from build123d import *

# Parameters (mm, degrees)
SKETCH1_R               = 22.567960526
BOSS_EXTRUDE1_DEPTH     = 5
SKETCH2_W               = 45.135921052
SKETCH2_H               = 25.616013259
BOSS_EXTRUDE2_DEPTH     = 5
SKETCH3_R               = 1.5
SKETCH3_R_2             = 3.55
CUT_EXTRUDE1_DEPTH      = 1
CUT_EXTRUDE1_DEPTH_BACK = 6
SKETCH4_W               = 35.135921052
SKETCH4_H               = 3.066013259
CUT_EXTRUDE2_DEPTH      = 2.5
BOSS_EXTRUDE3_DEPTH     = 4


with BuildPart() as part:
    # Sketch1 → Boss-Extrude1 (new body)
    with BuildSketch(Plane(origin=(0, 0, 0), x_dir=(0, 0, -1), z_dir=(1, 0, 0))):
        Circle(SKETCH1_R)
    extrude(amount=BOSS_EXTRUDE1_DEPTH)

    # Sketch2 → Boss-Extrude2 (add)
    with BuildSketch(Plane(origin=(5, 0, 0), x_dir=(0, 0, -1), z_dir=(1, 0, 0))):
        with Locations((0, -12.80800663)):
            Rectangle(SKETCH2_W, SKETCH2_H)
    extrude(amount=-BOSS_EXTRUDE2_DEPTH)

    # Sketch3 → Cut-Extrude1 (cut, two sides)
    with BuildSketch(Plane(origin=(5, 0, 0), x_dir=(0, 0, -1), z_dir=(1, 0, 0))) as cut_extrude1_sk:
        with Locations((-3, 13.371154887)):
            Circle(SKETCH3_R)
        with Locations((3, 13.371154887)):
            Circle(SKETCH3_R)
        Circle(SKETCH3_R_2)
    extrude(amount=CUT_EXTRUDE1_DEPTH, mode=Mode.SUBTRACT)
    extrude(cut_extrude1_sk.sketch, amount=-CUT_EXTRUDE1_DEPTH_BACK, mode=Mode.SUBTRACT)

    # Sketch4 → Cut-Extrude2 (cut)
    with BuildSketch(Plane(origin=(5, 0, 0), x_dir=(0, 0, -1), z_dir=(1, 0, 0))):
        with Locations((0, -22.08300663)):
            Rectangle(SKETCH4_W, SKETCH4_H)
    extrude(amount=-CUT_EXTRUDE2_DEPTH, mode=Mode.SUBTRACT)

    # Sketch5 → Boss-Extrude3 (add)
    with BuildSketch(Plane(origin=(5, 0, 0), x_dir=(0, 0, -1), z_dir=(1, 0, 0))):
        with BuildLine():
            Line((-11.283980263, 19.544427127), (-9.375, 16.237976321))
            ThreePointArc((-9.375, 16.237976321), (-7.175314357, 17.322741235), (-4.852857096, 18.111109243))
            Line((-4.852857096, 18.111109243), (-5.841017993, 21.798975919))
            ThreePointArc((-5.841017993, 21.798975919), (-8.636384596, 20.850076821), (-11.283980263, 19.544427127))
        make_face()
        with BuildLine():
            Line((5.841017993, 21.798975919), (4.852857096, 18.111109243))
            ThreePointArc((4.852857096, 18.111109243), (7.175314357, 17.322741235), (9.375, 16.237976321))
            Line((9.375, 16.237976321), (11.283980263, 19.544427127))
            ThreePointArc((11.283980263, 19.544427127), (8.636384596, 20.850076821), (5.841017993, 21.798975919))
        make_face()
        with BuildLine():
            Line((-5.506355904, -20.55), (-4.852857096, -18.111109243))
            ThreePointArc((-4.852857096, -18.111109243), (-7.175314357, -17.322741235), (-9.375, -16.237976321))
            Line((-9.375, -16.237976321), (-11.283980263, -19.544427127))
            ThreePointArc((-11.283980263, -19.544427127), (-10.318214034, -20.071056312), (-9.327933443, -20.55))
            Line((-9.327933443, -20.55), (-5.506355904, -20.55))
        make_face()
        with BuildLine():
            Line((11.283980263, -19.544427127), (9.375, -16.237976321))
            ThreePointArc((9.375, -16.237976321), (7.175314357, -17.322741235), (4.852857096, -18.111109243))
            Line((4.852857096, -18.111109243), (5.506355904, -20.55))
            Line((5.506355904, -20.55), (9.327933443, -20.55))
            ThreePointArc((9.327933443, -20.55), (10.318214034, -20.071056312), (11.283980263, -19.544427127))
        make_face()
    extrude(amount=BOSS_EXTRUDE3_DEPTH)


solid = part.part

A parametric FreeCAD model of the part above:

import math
import FreeCAD as App
import Part
import Sketcher
Q = App.Units.Quantity

doc = App.newDocument("Part")
body = doc.addObject("PartDesign::Body", "Body")

# Sketch on YZ plane
sketch1 = body.newObject("Sketcher::SketchObject", "Sketch")
sketch1.AttachmentSupport = (doc.getObject("YZ_Plane"), [""])
sketch1.MapMode = "FlatFace"
sketch1.addGeometry(Part.Circle(App.Vector(0, 0, 0), App.Vector(0, 0, 1), 23), False)
sketch1.addConstraint([
    Sketcher.Constraint("Coincident", 0, 3, -1, 1),
    Sketcher.Constraint("Diameter", 0, 45.135921),
])
pad1 = body.newObject("PartDesign::Pad", "Pad")
pad1.Profile = sketch1
pad1.Length = 5

# Sketch on YZ plane
sketch2 = body.newObject("Sketcher::SketchObject", "Sketch001")
sketch2.AttachmentSupport = (doc.getObject("YZ_Plane"), [""])
sketch2.MapMode = "FlatFace"
sketch2.AttachmentOffset = App.Placement(App.Vector(0, 0, 5), App.Rotation())
sketch2.addGeometry([
    Part.LineSegment(App.Vector(0, 23, 0), App.Vector(-26, 23, 0)),
    Part.LineSegment(App.Vector(-26, 23, 0), App.Vector(-26, -23, 0)),
    Part.LineSegment(App.Vector(-26, -23, 0), App.Vector(0, -23, 0)),
    Part.LineSegment(App.Vector(0, -23, 0), App.Vector(0, 23, 0)),
], False)
sketch2.addConstraint([
    Sketcher.Constraint("Coincident", 0, 2, 1, 1),
    Sketcher.Constraint("Coincident", 1, 2, 2, 1),
    Sketcher.Constraint("Coincident", 2, 2, 3, 1),
    Sketcher.Constraint("Coincident", 3, 2, 0, 1),
    Sketcher.Constraint("Horizontal", 0),
    Sketcher.Constraint("Vertical", 1),
    Sketcher.Constraint("Horizontal", 2),
    Sketcher.Constraint("Vertical", 3),
    Sketcher.Constraint("Symmetric", 2, 2, 3, 2, -1, 1),
    Sketcher.Constraint("DistanceY", 1, 2, 1, 1, 45.135921),
    Sketcher.Constraint("DistanceX", 0, 2, 0, 1, 25.616013),
])
pad2 = body.newObject("PartDesign::Pad", "Pad001")
pad2.Profile = sketch2
pad2.Length = 5
pad2.Reversed = True

# Sketch on YZ plane
sketch3 = body.newObject("Sketcher::SketchObject", "Sketch002")
sketch3.AttachmentSupport = (doc.getObject("YZ_Plane"), [""])
sketch3.MapMode = "FlatFace"
sketch3.AttachmentOffset = App.Placement(App.Vector(0, 0, 5), App.Rotation())
sketch3.addGeometry([
    Part.Circle(App.Vector(13.4, 3, 0), App.Vector(0, 0, 1), 1.5),
    Part.Circle(App.Vector(13.4, -3, 0), App.Vector(0, 0, 1), 1.5),
    Part.Circle(App.Vector(0, 0, 0), App.Vector(0, 0, 1), 3.5),
], False)
sketch3.addConstraint([
    Sketcher.Constraint("Coincident", 2, 3, -1, 1),
    Sketcher.Constraint("Equal", 0, 1),
    Sketcher.Constraint("Symmetric", 0, 3, 1, 3, -1),
    Sketcher.Constraint("Diameter", 0, 3.0),
    Sketcher.Constraint("Diameter", 2, 7.1),
    Sketcher.Constraint("DistanceY", -1, 1, 0, 3, 3.0),
    Sketcher.Constraint("DistanceX", -1, 1, 0, 3, 13.371155),
])
pocket1 = body.newObject("PartDesign::Pocket", "Pocket")
pocket1.Profile = sketch3
pocket1.Type = "ThroughAll"
pocket1.Midplane = True

# Sketch on YZ plane
sketch4 = body.newObject("Sketcher::SketchObject", "Sketch003")
sketch4.AttachmentSupport = (doc.getObject("YZ_Plane"), [""])
sketch4.MapMode = "FlatFace"
sketch4.AttachmentOffset = App.Placement(App.Vector(0, 0, 5), App.Rotation())
sketch4.addGeometry([
    Part.LineSegment(App.Vector(-20.6, 17.6, 0), App.Vector(-23.6, 17.6, 0)),
    Part.LineSegment(App.Vector(-23.6, 17.6, 0), App.Vector(-23.6, -17.6, 0)),
    Part.LineSegment(App.Vector(-23.6, -17.6, 0), App.Vector(-20.6, -17.6, 0)),
    Part.LineSegment(App.Vector(-20.6, -17.6, 0), App.Vector(-20.6, 17.6, 0)),
], False)
sketch4.addConstraint([
    Sketcher.Constraint("Coincident", 0, 2, 1, 1),
    Sketcher.Constraint("Coincident", 1, 2, 2, 1),
    Sketcher.Constraint("Coincident", 2, 2, 3, 1),
    Sketcher.Constraint("Coincident", 3, 2, 0, 1),
    Sketcher.Constraint("Horizontal", 0),
    Sketcher.Constraint("Vertical", 1),
    Sketcher.Constraint("Horizontal", 2),
    Sketcher.Constraint("Vertical", 3),
    Sketcher.Constraint("DistanceX", 2, 2, -1, 1, 20.55),
    Sketcher.Constraint("DistanceY", 1, 2, 1, 1, 35.135921),
    Sketcher.Constraint("DistanceX", 0, 2, 0, 1, 3.066013),
    Sketcher.Constraint("DistanceY", -1, 1, 0, 2, 17.567961),
])
pocket2 = body.newObject("PartDesign::Pocket", "Pocket001")
pocket2.Profile = sketch4
pocket2.Length = 2.5

# Sketch on YZ plane
sketch5 = body.newObject("Sketcher::SketchObject", "Sketch004")
sketch5.AttachmentSupport = (doc.getObject("YZ_Plane"), [""])
sketch5.MapMode = "FlatFace"
sketch5.AttachmentOffset = App.Placement(App.Vector(0, 0, 5), App.Rotation())
sketch5.addGeometry([
    Part.LineSegment(App.Vector(19.5, 11.3, 0), App.Vector(16.2, 9.4, 0)),  # 0
    Part.ArcOfCircle(Part.Circle(App.Vector(0, 0, 0), App.Vector(0, 0, 1), 18.7), math.radians(15), math.radians(30)),  # 1
    Part.LineSegment(App.Vector(18.1, 4.9, 0), App.Vector(21.8, 5.8, 0)),  # 2
    Part.ArcOfCircle(Part.Circle(App.Vector(0, 0, 0), App.Vector(0, 0, 1), 22.6), math.radians(15), math.radians(30)),  # 3
    Part.LineSegment(App.Vector(21.8, -5.8, 0), App.Vector(18.1, -4.9, 0)),  # 4
    Part.ArcOfCircle(Part.Circle(App.Vector(0, 0, 0), App.Vector(0, 0, 1), 18.7), math.radians(-30), math.radians(-15)),  # 5
    Part.LineSegment(App.Vector(16.2, -9.4, 0), App.Vector(19.5, -11.3, 0)),  # 6
    Part.ArcOfCircle(Part.Circle(App.Vector(0, 0, 0), App.Vector(0, 0, 1), 22.6), math.radians(-30), math.radians(-15)),  # 7
    Part.LineSegment(App.Vector(-20.6, 5.5, 0), App.Vector(-18.1, 4.9, 0)),  # 8
    Part.ArcOfCircle(Part.Circle(App.Vector(0, 0, 0), App.Vector(0, 0, 1), 18.7), math.radians(150), math.radians(165)),  # 9
    Part.LineSegment(App.Vector(-16.2, 9.4, 0), App.Vector(-19.5, 11.3, 0)),  # 10
    Part.ArcOfCircle(Part.Circle(App.Vector(0, 0, 0), App.Vector(0, 0, 1), 22.6), math.radians(150), math.radians(155.59)),  # 11
    Part.LineSegment(App.Vector(-20.6, 9.3, 0), App.Vector(-20.6, 5.5, 0)),  # 12
    Part.LineSegment(App.Vector(-19.5, -11.3, 0), App.Vector(-16.2, -9.4, 0)),  # 13
    Part.ArcOfCircle(Part.Circle(App.Vector(0, 0, 0), App.Vector(0, 0, 1), 18.7), math.radians(-165), math.radians(-150)),  # 14
    Part.LineSegment(App.Vector(-18.1, -4.9, 0), App.Vector(-20.6, -5.5, 0)),  # 15
    Part.LineSegment(App.Vector(-20.6, -5.5, 0), App.Vector(-20.6, -9.3, 0)),  # 16
    Part.ArcOfCircle(Part.Circle(App.Vector(0, 0, 0), App.Vector(0, 0, 1), 22.6), math.radians(-155.59), math.radians(-150)),  # 17
], False)
sketch5.addConstraint([
    Sketcher.Constraint("Coincident", 0, 2, 1, 2),
    Sketcher.Constraint("Coincident", 1, 1, 2, 1),
    Sketcher.Constraint("Coincident", 2, 2, 3, 1),
    Sketcher.Constraint("Coincident", 3, 2, 0, 1),
    Sketcher.Constraint("Coincident", 4, 2, 5, 2),
    Sketcher.Constraint("Coincident", 5, 1, 6, 1),
    Sketcher.Constraint("Coincident", 6, 2, 7, 1),
    Sketcher.Constraint("Coincident", 7, 2, 4, 1),
    Sketcher.Constraint("Coincident", 8, 2, 9, 2),
    Sketcher.Constraint("Coincident", 9, 1, 10, 1),
    Sketcher.Constraint("Coincident", 10, 2, 11, 1),
    Sketcher.Constraint("Coincident", 11, 2, 12, 1),
    Sketcher.Constraint("Coincident", 12, 2, 8, 1),
    Sketcher.Constraint("Coincident", 13, 2, 14, 2),
    Sketcher.Constraint("Coincident", 14, 1, 15, 1),
    Sketcher.Constraint("Coincident", 15, 2, 16, 1),
    Sketcher.Constraint("Coincident", 16, 2, 17, 1),
    Sketcher.Constraint("Coincident", 17, 2, 13, 1),
    Sketcher.Constraint("Vertical", 12),
    Sketcher.Constraint("Vertical", 16),
    Sketcher.Constraint("Coincident", 1, 3, -1, 1),
    Sketcher.Constraint("Coincident", 3, 3, -1, 1),
    Sketcher.Constraint("Coincident", 5, 3, -1, 1),
    Sketcher.Constraint("Coincident", 7, 3, -1, 1),
    Sketcher.Constraint("Coincident", 9, 3, -1, 1),
    Sketcher.Constraint("Coincident", 11, 3, -1, 1),
    Sketcher.Constraint("Coincident", 14, 3, -1, 1),
    Sketcher.Constraint("Coincident", 17, 3, -1, 1),
    Sketcher.Constraint("Equal", 1, 5),
    Sketcher.Constraint("Equal", 3, 7),
    Sketcher.Constraint("Equal", 5, 9),
    Sketcher.Constraint("Equal", 7, 11),
    Sketcher.Constraint("Equal", 9, 14),
    Sketcher.Constraint("Equal", 11, 17),
    Sketcher.Constraint("Symmetric", 12, 2, 15, 2, -1),
    Sketcher.Constraint("Parallel", 4, 8),
    Sketcher.Constraint("Parallel", 6, 10),
    Sketcher.Constraint("Parallel", 0, 13),
    Sketcher.Constraint("Parallel", 2, 15),
    Sketcher.Constraint("Horizontal", 1, 1, 8, 2),
    Sketcher.Constraint("Horizontal", 0, 2, 9, 1),
    Sketcher.Constraint("Horizontal", 3, 2, 10, 2),
    Sketcher.Constraint("Horizontal", 5, 1, 13, 2),
    Sketcher.Constraint("Horizontal", 4, 2, 14, 1),
    Sketcher.Constraint("Vertical", 1, 1, 4, 2),
    Sketcher.Constraint("Vertical", 0, 2, 5, 1),
    Sketcher.Constraint("Angle", 0, Q("-150 deg")),
    Sketcher.Constraint("Angle", 2, Q("15 deg")),
    Sketcher.Constraint("Radius", 1, 18.75),
    Sketcher.Constraint("DistanceX", 11, 2, -1, 1, 20.55),
    Sketcher.Constraint("Radius", 3, 22.56796),
    Sketcher.Constraint("DistanceY", -1, 1, 0, 2, 9.375),
    Sketcher.Constraint("DistanceX", 0, 2, 2, 2, 5.561),
])
pad3 = body.newObject("PartDesign::Pad", "Pad002")
pad3.Profile = sketch5
pad3.Length = 4

doc.recompute()
